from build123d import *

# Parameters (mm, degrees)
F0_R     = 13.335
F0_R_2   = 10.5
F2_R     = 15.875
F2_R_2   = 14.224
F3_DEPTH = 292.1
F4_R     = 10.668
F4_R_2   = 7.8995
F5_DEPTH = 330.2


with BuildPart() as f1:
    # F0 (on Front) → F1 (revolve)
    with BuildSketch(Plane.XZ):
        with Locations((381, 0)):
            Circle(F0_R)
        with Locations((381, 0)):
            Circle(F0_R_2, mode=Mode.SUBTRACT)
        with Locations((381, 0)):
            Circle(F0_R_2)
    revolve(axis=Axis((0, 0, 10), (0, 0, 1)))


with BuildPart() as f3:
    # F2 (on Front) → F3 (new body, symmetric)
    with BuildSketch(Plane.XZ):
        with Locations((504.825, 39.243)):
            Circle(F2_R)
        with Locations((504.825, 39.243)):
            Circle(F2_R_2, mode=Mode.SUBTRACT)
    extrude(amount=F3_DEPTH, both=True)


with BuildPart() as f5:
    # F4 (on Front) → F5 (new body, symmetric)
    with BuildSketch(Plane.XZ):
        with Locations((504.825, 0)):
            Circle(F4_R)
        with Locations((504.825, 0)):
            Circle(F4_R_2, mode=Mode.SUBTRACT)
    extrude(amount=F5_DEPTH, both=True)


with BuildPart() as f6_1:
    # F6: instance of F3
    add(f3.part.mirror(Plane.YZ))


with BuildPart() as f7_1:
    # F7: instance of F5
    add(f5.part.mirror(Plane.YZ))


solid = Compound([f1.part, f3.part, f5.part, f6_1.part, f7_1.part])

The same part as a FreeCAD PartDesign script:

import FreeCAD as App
import Part
import Sketcher
from FreeCAD import Vector
Q = App.Units.Quantity

doc = App.newDocument("Part")
params = doc.addObject("Spreadsheet::Sheet", "Params")
for row, (alias, value) in enumerate([
    ("sketch1_diameter", "1.05 in"),
    ("revolution_angle", "360 deg"),
    ("sketch2_diameter", "1.25 in"),
    ("sketch2_diameter2", "1.12 in"),
    ("pad1_length", "23 in"),
    ("sketch3_diameter", "0.84 in"),
    ("pad2_length", "26 in"),
], start=1):
    params.set(f"A{row}", alias)
    params.set(f"B{row}", "=" + value)
    params.setAlias(f"B{row}", alias)

body = doc.addObject("PartDesign::Body", "Body")

# Sketch on XZ plane
sketch1 = doc.addObject("Sketcher::SketchObject", "Sketch")
body.addObject(sketch1)
sketch1.AttachmentSupport = (doc.XZ_Plane, [""])
sketch1.MapMode = "FlatFace"
sketch1.addGeometry(Part.Circle(Vector(381, 0, 0), Vector(0, 0, 1), 13), False)
sketch1.addConstraint(Sketcher.Constraint("PointOnObject", 0, 3, -1))
sketch1.addConstraint(Sketcher.Constraint("Diameter", 0, Q("1.05 in")))
sketch1.addConstraint(Sketcher.Constraint("DistanceX", -1, 1, 0, 3, Q("15 in")))
sketch1.setExpression("Constraints[1]", "Params.sketch1_diameter")
revolution = doc.addObject("PartDesign::Revolution", "Revolution")
body.addObject(revolution)
revolution.Profile = sketch1
revolution.ReferenceAxis = (sketch1, ["V_Axis"])
revolution.setExpression("Angle", "Params.revolution_angle")
body2 = doc.addObject("PartDesign::Body", "Body001")

# Sketch on XZ plane
sketch2 = doc.addObject("Sketcher::SketchObject", "Sketch001")
body2.addObject(sketch2)
sketch2.AttachmentSupport = (doc.getObject("XZ_Plane001"), [""])
sketch2.MapMode = "FlatFace"
sketch2.addGeometry(Part.Circle(Vector(505, 39, 0), Vector(0, 0, 1), 16), False)
sketch2.addGeometry(Part.Circle(Vector(505, 39, 0), Vector(0, 0, 1), 14), False)
sketch2.addConstraint(Sketcher.Constraint("Coincident", 1, 3, 0, 3))
sketch2.addConstraint(Sketcher.Constraint("Diameter", 0, Q("1.25 in")))
sketch2.addConstraint(Sketcher.Constraint("Diameter", 1, Q("1.12 in")))
sketch2.addConstraint(Sketcher.Constraint("DistanceX", -1, 1, 0, 3, Q("19.875 in")))
sketch2.addConstraint(Sketcher.Constraint("DistanceY", -1, 1, 0, 3, Q("1.545 in")))
sketch2.setExpression("Constraints[1]", "Params.sketch2_diameter")
sketch2.setExpression("Constraints[2]", "Params.sketch2_diameter2")
pad1 = doc.addObject("PartDesign::Pad", "Pad")
body2.addObject(pad1)
pad1.Profile = sketch2
pad1.setExpression("Length", "Params.pad1_length")
pad1.Midplane = True
body3 = doc.addObject("PartDesign::Body", "Body002")

# Sketch on XZ plane
sketch3 = doc.addObject("Sketcher::SketchObject", "Sketch002")
body3.addObject(sketch3)
sketch3.AttachmentSupport = (doc.getObject("XZ_Plane002"), [""])
sketch3.MapMode = "FlatFace"
sketch3.addGeometry(Part.Circle(Vector(505, 0, 0), Vector(0, 0, 1), 11), False)
sketch3.addGeometry(Part.Circle(Vector(505, 0, 0), Vector(0, 0, 1), 8), False)
sketch3.addConstraint(Sketcher.Constraint("Coincident", 1, 3, 0, 3))
sketch3.addConstraint(Sketcher.Constraint("PointOnObject", 0, 3, -1))
sketch3.addConstraint(Sketcher.Constraint("Diameter", 0, Q("0.84 in")))
sketch3.addConstraint(Sketcher.Constraint("Diameter", 1, Q("15.799 mm")))
sketch3.addConstraint(Sketcher.Constraint("DistanceX", -1, 1, 0, 3, Q("19.875 in")))
sketch3.setExpression("Constraints[2]", "Params.sketch3_diameter")
pad2 = doc.addObject("PartDesign::Pad", "Pad001")
body3.addObject(pad2)
pad2.Profile = sketch3
pad2.setExpression("Length", "Params.pad2_length")
pad2.Midplane = True
body4 = doc.addObject("PartDesign::Body", "Body003")
doc.recompute()

mirroring = doc.addObject("Part::Mirroring", "Mirroring")
mirroring.Source = body2
mirroring.Base = Vector(0, 0, 0)
mirroring.Normal = Vector(1, 0, 0)
body4.BaseFeature = mirroring
doc.recompute()
body5 = doc.addObject("PartDesign::Body", "Body004")
doc.recompute()

mirroring2 = doc.addObject("Part::Mirroring", "Mirroring001")
mirroring2.Source = body3
mirroring2.Base = Vector(0, 0, 0)
mirroring2.Normal = Vector(1, 0, 0)
body5.BaseFeature = mirroring2
doc.recompute()
mirroring.Visibility = False
mirroring2.Visibility = False

doc.recompute()
